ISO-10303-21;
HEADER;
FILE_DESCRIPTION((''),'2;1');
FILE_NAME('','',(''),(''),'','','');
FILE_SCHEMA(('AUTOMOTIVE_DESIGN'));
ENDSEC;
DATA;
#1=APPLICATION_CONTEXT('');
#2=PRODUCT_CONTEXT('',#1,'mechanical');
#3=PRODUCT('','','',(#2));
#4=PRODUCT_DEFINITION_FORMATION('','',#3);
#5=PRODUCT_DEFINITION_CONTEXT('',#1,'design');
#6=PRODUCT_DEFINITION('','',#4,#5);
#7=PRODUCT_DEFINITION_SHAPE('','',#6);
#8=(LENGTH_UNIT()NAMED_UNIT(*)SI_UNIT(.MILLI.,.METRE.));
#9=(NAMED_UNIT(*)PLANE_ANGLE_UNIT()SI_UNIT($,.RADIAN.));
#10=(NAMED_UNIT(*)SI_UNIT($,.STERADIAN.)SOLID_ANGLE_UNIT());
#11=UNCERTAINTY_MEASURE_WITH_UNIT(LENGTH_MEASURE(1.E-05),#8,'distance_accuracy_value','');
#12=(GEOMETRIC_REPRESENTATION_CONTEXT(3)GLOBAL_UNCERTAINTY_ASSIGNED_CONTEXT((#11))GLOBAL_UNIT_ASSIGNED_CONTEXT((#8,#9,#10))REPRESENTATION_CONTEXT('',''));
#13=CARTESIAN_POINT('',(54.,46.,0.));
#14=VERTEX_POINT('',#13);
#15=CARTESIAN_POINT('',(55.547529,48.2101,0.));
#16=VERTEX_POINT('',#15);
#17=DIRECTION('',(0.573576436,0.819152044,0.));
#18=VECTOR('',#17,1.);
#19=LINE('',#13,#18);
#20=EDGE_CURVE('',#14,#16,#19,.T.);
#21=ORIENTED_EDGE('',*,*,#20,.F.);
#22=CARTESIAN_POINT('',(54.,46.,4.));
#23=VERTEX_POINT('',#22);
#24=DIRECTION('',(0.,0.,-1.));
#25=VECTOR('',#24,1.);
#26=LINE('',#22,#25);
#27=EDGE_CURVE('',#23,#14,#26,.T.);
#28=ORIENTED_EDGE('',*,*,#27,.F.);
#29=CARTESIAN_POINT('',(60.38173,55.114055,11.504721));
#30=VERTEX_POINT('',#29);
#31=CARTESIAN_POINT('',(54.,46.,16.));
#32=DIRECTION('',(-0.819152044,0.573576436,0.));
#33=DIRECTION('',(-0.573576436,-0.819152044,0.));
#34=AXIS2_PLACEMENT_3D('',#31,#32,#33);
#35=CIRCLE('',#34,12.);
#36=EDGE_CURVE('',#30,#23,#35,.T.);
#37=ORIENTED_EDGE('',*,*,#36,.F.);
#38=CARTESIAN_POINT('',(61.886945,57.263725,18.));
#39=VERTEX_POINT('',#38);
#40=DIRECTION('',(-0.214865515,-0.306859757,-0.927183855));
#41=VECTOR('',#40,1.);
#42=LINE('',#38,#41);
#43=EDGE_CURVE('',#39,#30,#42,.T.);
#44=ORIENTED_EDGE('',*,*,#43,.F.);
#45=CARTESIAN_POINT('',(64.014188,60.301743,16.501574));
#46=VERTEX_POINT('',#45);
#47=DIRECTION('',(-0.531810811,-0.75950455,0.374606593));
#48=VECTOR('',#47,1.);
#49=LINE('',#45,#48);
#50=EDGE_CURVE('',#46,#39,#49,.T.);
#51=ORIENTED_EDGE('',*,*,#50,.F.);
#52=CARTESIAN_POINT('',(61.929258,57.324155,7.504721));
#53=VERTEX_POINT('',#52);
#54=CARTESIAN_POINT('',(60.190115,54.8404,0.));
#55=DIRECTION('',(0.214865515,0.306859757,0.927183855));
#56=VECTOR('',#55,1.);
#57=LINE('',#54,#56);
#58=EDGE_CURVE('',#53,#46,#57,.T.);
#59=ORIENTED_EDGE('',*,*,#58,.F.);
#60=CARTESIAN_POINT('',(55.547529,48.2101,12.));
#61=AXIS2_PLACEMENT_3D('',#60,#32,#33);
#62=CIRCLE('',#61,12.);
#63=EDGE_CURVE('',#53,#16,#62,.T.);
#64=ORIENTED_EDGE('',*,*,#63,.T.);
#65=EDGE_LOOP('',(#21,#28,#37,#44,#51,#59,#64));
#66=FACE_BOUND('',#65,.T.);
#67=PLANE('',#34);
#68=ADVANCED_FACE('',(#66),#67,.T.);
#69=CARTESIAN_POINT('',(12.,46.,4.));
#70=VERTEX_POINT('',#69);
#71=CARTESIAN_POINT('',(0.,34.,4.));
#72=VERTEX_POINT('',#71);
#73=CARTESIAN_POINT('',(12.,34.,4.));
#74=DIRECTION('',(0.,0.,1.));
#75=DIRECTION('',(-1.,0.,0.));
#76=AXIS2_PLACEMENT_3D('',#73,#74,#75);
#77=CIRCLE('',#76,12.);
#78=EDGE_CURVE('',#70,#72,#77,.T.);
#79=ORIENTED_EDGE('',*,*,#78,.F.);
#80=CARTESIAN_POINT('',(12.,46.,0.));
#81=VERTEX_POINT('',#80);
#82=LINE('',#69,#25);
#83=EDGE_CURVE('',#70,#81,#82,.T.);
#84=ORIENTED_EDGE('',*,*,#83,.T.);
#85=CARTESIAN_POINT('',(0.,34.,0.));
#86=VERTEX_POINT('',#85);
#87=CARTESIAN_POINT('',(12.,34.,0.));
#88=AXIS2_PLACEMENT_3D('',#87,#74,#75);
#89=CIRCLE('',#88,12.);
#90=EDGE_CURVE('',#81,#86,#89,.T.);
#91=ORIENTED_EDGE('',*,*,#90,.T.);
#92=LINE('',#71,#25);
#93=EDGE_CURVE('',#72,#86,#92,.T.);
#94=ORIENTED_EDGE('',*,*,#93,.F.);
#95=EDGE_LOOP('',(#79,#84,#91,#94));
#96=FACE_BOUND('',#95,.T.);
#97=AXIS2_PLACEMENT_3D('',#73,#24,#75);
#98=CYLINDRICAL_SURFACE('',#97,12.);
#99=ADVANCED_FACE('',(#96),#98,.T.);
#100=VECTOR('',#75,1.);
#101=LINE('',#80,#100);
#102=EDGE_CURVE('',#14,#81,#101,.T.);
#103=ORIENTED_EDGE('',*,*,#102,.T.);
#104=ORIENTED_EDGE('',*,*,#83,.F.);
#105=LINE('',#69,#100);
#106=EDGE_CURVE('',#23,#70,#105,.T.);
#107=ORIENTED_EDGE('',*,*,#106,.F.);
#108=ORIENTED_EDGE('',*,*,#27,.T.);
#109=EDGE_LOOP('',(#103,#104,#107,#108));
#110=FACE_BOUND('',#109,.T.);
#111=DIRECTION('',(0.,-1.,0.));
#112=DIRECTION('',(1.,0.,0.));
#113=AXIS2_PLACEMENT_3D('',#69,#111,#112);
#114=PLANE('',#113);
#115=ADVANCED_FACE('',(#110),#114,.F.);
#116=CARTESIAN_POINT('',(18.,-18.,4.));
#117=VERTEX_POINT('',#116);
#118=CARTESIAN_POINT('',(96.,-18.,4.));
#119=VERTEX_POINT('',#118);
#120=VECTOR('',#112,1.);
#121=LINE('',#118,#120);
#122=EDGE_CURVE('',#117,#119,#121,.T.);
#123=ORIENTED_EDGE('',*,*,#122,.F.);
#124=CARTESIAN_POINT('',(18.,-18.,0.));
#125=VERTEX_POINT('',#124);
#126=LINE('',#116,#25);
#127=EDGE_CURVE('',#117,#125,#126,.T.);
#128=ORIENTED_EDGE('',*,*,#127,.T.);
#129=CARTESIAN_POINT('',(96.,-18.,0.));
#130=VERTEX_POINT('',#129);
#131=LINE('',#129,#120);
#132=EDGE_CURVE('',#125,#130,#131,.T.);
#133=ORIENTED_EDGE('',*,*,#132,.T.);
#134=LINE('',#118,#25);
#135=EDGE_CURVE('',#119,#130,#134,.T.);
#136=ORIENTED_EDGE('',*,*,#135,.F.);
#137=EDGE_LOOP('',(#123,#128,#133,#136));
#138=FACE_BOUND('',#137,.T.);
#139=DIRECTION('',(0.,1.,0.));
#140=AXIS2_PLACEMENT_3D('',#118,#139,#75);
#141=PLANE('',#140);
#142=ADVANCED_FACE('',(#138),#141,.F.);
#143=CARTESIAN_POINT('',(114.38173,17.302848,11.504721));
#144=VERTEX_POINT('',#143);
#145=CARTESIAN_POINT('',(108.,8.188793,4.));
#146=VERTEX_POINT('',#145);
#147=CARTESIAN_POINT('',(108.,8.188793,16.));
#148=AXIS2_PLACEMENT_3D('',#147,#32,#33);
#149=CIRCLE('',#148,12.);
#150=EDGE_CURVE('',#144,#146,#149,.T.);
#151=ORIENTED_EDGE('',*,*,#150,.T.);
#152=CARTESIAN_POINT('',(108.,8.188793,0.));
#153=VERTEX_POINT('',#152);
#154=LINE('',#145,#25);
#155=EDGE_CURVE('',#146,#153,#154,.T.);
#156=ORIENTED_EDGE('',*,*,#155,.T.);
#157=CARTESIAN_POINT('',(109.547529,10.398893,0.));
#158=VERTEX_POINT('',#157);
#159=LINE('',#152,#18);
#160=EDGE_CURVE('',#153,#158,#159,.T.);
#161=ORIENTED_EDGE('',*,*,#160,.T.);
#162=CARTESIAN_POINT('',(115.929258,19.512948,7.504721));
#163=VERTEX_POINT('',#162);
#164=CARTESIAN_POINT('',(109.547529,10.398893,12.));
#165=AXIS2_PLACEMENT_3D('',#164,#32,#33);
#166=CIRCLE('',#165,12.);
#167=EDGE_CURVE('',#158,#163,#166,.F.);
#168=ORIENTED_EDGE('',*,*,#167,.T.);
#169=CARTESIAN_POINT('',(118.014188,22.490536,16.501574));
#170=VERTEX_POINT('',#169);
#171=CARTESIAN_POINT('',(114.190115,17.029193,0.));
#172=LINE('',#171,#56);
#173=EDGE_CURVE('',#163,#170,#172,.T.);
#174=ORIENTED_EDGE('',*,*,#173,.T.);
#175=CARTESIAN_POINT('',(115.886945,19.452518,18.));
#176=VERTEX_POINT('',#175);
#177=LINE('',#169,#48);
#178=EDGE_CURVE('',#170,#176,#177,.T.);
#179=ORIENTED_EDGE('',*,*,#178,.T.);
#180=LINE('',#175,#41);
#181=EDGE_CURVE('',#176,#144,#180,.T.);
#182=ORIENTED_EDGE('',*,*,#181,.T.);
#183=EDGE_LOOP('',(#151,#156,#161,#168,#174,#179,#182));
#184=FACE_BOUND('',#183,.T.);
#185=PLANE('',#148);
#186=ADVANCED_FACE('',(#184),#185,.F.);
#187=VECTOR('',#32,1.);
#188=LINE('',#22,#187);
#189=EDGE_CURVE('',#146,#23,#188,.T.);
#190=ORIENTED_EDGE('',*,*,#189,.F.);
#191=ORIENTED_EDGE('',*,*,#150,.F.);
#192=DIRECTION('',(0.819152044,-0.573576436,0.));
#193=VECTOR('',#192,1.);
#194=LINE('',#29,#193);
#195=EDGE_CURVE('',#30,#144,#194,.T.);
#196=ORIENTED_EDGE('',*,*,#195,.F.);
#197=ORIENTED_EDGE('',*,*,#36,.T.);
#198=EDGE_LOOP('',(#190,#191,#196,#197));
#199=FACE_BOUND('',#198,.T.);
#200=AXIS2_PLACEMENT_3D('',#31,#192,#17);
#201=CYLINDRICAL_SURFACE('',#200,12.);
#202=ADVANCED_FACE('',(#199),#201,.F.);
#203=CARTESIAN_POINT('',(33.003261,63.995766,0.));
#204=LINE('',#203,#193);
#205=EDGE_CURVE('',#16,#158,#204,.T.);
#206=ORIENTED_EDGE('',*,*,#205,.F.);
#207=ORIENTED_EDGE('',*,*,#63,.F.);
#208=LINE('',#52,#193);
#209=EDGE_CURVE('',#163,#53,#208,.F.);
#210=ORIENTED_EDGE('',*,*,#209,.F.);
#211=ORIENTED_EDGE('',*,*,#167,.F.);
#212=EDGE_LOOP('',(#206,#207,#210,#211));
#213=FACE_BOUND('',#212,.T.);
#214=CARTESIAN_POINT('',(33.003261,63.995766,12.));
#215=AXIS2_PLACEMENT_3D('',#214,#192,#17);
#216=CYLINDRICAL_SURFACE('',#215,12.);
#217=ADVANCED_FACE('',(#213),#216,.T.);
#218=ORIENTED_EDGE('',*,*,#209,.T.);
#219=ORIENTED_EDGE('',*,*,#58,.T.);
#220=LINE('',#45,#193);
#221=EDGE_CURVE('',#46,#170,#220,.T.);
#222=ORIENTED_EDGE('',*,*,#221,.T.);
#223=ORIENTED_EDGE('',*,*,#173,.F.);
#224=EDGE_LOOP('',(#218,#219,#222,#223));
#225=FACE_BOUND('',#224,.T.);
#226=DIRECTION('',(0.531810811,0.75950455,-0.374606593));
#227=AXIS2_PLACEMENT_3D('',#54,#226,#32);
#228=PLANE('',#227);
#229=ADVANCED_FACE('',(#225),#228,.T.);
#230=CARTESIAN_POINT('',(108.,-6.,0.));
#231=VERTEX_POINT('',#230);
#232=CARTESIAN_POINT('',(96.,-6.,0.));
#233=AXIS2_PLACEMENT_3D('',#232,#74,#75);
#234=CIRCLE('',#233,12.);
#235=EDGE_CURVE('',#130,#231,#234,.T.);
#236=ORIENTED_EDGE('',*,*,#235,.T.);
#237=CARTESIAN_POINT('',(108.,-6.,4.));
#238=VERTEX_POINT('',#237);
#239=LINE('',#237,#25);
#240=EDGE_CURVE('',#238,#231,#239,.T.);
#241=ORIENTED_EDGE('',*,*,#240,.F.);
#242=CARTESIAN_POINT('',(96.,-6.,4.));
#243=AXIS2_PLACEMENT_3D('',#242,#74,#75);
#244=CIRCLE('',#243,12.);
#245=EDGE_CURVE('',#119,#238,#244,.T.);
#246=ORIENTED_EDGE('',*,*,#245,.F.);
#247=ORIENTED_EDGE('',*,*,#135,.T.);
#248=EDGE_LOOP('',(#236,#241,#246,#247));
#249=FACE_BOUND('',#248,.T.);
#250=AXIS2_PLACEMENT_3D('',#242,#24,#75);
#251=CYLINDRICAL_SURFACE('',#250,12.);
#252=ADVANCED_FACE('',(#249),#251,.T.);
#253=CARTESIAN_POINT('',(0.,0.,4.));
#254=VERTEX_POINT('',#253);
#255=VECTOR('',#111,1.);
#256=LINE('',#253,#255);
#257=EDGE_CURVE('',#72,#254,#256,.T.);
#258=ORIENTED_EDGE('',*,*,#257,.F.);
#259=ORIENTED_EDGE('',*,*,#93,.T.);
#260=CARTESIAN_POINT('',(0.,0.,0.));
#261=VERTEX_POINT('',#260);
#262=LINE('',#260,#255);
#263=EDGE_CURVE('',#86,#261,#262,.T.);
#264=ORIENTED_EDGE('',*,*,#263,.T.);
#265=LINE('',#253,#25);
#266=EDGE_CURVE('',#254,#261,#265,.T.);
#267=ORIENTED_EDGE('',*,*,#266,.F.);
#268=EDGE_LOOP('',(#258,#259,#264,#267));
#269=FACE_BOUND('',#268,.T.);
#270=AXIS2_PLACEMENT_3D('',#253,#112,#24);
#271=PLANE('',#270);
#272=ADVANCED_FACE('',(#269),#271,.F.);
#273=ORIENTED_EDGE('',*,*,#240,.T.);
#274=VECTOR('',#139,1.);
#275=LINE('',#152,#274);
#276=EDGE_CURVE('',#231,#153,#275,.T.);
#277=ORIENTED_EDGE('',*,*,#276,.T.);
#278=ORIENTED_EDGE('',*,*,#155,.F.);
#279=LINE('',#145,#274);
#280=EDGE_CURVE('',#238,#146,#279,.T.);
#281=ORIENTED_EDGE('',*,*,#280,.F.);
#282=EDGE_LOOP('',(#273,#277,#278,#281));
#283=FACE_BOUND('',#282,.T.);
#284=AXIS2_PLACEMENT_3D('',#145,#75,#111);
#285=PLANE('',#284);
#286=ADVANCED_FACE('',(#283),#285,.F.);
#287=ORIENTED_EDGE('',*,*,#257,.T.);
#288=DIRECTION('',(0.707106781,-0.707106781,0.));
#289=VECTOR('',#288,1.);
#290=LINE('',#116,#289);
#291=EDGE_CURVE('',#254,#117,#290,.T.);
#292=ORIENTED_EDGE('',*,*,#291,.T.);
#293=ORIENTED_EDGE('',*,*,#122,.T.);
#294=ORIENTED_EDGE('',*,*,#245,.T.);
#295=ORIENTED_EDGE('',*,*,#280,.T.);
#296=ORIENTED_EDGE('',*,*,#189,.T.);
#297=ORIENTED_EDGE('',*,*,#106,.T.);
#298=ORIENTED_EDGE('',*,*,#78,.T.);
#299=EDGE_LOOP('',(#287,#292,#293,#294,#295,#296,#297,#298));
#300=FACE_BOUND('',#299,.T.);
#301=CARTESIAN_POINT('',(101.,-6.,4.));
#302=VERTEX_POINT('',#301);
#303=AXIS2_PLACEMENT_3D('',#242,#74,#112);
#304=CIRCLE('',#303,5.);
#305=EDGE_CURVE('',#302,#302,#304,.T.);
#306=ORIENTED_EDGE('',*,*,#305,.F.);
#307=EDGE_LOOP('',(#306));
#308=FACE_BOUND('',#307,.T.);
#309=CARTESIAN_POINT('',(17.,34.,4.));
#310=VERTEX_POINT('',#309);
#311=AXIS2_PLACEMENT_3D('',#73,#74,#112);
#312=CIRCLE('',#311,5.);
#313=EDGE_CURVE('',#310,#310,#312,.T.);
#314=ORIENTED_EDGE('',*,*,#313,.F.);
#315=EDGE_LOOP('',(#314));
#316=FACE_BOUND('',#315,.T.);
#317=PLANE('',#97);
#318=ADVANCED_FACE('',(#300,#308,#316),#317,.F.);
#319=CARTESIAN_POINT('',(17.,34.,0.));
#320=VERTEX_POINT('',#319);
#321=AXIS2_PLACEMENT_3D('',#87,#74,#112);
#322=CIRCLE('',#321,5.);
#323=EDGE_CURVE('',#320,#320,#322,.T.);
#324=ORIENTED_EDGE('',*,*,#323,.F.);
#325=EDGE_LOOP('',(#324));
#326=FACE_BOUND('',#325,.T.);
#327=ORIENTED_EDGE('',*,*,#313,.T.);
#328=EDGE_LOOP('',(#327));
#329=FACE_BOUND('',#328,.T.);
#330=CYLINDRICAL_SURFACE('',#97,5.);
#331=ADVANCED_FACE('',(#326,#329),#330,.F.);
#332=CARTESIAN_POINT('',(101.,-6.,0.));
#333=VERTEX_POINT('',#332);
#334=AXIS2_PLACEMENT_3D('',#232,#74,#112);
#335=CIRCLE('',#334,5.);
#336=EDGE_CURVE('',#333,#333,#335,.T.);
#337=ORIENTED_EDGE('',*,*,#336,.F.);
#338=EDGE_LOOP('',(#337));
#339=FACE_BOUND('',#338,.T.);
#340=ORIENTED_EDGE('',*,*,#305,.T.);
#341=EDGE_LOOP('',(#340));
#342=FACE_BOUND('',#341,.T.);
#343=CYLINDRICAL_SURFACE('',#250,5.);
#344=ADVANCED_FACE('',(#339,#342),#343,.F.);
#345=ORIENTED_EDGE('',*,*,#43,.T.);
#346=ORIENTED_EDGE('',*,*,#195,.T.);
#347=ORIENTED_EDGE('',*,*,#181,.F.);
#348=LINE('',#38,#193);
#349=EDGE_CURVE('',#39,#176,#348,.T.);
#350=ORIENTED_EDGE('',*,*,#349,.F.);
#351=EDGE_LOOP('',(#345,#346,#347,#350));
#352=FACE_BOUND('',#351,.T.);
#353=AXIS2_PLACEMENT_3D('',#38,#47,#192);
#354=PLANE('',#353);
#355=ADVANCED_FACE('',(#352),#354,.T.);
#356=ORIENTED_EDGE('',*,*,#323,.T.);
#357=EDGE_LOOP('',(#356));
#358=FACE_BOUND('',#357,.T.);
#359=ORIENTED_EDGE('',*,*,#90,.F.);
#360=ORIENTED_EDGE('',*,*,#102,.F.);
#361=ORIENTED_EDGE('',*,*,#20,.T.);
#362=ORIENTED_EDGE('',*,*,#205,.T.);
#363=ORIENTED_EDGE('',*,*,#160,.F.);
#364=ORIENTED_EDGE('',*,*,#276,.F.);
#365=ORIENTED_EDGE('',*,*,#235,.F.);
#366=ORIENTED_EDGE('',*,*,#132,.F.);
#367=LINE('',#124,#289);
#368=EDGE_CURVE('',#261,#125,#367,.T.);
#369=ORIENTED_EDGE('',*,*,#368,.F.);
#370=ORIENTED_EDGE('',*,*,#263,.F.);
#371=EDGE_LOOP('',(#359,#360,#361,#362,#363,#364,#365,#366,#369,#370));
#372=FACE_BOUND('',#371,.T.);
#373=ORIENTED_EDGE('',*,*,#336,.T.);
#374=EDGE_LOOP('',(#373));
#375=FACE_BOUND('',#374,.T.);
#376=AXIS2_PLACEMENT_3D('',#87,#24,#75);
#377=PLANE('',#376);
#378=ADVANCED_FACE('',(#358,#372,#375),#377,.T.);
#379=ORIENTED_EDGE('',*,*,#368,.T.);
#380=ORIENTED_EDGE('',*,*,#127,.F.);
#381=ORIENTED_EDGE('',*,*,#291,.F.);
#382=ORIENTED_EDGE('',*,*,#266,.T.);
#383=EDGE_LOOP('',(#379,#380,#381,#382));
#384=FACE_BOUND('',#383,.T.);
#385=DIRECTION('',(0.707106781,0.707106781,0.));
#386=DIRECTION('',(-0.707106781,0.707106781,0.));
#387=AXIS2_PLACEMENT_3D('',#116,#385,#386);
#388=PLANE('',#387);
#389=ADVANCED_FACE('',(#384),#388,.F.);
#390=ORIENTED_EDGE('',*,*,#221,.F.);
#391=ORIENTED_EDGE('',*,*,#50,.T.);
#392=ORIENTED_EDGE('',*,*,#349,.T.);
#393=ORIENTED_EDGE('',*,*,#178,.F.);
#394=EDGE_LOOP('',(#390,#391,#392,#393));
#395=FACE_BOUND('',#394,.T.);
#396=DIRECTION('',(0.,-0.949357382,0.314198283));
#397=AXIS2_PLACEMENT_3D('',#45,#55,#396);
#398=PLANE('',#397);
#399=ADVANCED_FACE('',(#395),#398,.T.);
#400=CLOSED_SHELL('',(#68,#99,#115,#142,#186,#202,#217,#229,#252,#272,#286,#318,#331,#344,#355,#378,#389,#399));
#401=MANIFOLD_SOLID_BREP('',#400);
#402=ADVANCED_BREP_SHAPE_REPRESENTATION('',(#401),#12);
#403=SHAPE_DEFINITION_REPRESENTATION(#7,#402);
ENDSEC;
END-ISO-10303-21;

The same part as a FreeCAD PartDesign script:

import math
import FreeCAD as App
import Part
import Sketcher
Q = App.Units.Quantity


def edges_at(feature, points):
    """Names of the edges that pass closest to the given points."""
    edges = feature.Shape.Edges
    near = lambda p: min(range(len(edges)), key=lambda i: edges[i].distToShape(Part.Vertex(*p))[0])
    return sorted({f"Edge{near(p) + 1}" for p in points})

doc = App.newDocument("Part")
params = doc.addObject("Spreadsheet::Sheet", "Params")
for row, (alias, value) in enumerate([
    ("sketch1_diameter", "10 mm"),
    ("sketch1_radius", "12 mm"),
    ("sketch1_width", "78 mm"),
    ("sketch1_width2", "42 mm"),
    ("sketch1_height", "34 mm"),
    ("pad1_length", "4 mm"),
    ("sketch2_radius", "12 mm"),
    ("sketch2_width", "4 mm"),
    ("sketch2_length", "4 mm"),
    ("pad2_length", "65.921828 mm"),
    ("fillet_radius", "12 mm"),
], start=1):
    params.set(f"A{row}", alias)
    params.set(f"B{row}", "=" + value)
    params.setAlias(f"B{row}", alias)

body = doc.addObject("PartDesign::Body", "Body")

# Sketch on XY plane
sketch1 = body.newObject("Sketcher::SketchObject", "Sketch")
sketch1.AttachmentSupport = (doc.getObject("XY_Plane"), [""])
sketch1.MapMode = "FlatFace"
sketch1.addGeometry(Part.LineSegment(App.Vector(0, 34, 0), App.Vector(0, 0, 0)), False)
sketch1.addGeometry(Part.LineSegment(App.Vector(0, 0, 0), App.Vector(18, -18, 0)), False)
sketch1.addGeometry(Part.LineSegment(App.Vector(18, -18, 0), App.Vector(96, -18, 0)), False)
sketch1.addGeometry(Part.ArcOfCircle(Part.Circle(App.Vector(96, -6, 0), App.Vector(0, 0, 1), 12), math.radians(-90), math.radians(0)), False)
sketch1.addGeometry(Part.LineSegment(App.Vector(108, -6, 0), App.Vector(108, 8, 0)), False)
sketch1.addGeometry(Part.LineSegment(App.Vector(108, 8, 0), App.Vector(54, 46, 0)), False)
sketch1.addGeometry(Part.LineSegment(App.Vector(54, 46, 0), App.Vector(12, 46, 0)), False)
sketch1.addGeometry(Part.ArcOfCircle(Part.Circle(App.Vector(12, 34, 0), App.Vector(0, 0, 1), 12), math.radians(90), math.radians(180)), False)
sketch1.addGeometry(Part.Circle(App.Vector(96, -6, 0), App.Vector(0, 0, 1), 5), False)
sketch1.addGeometry(Part.Circle(App.Vector(12, 34, 0), App.Vector(0, 0, 1), 5), False)
sketch1.addConstraint(Sketcher.Constraint("Coincident", 0, 2, 1, 1))
sketch1.addConstraint(Sketcher.Constraint("Coincident", 1, 2, 2, 1))
sketch1.addConstraint(Sketcher.Constraint("Tangent", 2, 2, 3, 1))
sketch1.addConstraint(Sketcher.Constraint("Tangent", 3, 2, 4, 1))
sketch1.addConstraint(Sketcher.Constraint("Coincident", 4, 2, 5, 1))
sketch1.addConstraint(Sketcher.Constraint("Coincident", 5, 2, 6, 1))
sketch1.addConstraint(Sketcher.Constraint("Tangent", 6, 2, 7, 1))
sketch1.addConstraint(Sketcher.Constraint("Tangent", 7, 2, 0, 1))
sketch1.addConstraint(Sketcher.Constraint("Vertical", 0))
sketch1.addConstraint(Sketcher.Constraint("Horizontal", 2))
sketch1.addConstraint(Sketcher.Constraint("Vertical", 4))
sketch1.addConstraint(Sketcher.Constraint("Horizontal", 6))
sketch1.addConstraint(Sketcher.Constraint("Coincident", 0, 2, -1, 1))
sketch1.addConstraint(Sketcher.Constraint("Coincident", 8, 3, 3, 3))
sketch1.addConstraint(Sketcher.Constraint("Coincident", 9, 3, 7, 3))
sketch1.addConstraint(Sketcher.Constraint("Equal", 3, 7))
sketch1.addConstraint(Sketcher.Constraint("Equal", 8, 9))
sketch1.addConstraint(Sketcher.Constraint("Diameter", 8, 10.0))
sketch1.addConstraint(Sketcher.Constraint("Radius", 3, 12.0))
sketch1.addConstraint(Sketcher.Constraint("DistanceX", 2, 1, 2, 2, 78.0))
sketch1.addConstraint(Sketcher.Constraint("DistanceX", 6, 2, 6, 1, 42.0))
sketch1.addConstraint(Sketcher.Constraint("DistanceY", 0, 2, 0, 1, 34.0))
sketch1.addConstraint(Sketcher.Constraint("Angle", 1, Q("-45 deg")))
sketch1.addConstraint(Sketcher.Constraint("Angle", 5, Q("145 deg")))
sketch1.addConstraint(Sketcher.Constraint("DistanceX", -1, 1, 3, 3, 96.0))
sketch1.setExpression("Constraints[17]", "Params.sketch1_diameter")
sketch1.setExpression("Constraints[18]", "Params.sketch1_radius")
sketch1.setExpression("Constraints[19]", "Params.sketch1_width")
sketch1.setExpression("Constraints[20]", "Params.sketch1_width2")
sketch1.setExpression("Constraints[21]", "Params.sketch1_height")
pad1 = body.newObject("PartDesign::Pad", "Pad")
pad1.Profile = sketch1
pad1.setExpression("Length", "Params.pad1_length")

# Sketch on an angled plane
sketch2 = body.newObject("Sketcher::SketchObject", "Sketch001")
sketch2.Placement = App.Placement(App.Vector(14.621613, -10.238164, 0), App.Rotation(App.Vector(0, 0, -1), App.Vector(0.573576436, 0.819152044, 0), App.Vector(0.819152044, -0.573576436, 0), "ZXY"))
sketch2.addGeometry(Part.LineSegment(App.Vector(-4, 68.7, 0), App.Vector(0, 68.7, 0)), False)
sketch2.addGeometry(Part.LineSegment(App.Vector(0, 68.7, 0), App.Vector(0, 79.4, 0)), False)
sketch2.addGeometry(Part.LineSegment(App.Vector(0, 79.4, 0), App.Vector(-16.5, 86.1, 0)), False)
sketch2.addGeometry(Part.LineSegment(App.Vector(-16.5, 86.1, 0), App.Vector(-18, 82.4, 0)), False)
sketch2.addGeometry(Part.LineSegment(App.Vector(-18, 82.4, 0), App.Vector(-11.5, 79.8, 0)), False)
sketch2.addGeometry(Part.ArcOfCircle(Part.Circle(App.Vector(-16, 68.7, 0), App.Vector(0, 0, 1), 12), math.radians(0), math.radians(68)), False)
sketch2.addConstraint(Sketcher.Constraint("Coincident", 0, 2, 1, 1))
sketch2.addConstraint(Sketcher.Constraint("Coincident", 1, 2, 2, 1))
sketch2.addConstraint(Sketcher.Constraint("Coincident", 2, 2, 3, 1))
sketch2.addConstraint(Sketcher.Constraint("Coincident", 3, 2, 4, 1))
sketch2.addConstraint(Sketcher.Constraint("Tangent", 4, 2, 5, 2))
sketch2.addConstraint(Sketcher.Constraint("Coincident", 5, 1, 0, 1))
sketch2.addConstraint(Sketcher.Constraint("Horizontal", 0))
sketch2.addConstraint(Sketcher.Constraint("Vertical", 1))
sketch2.addConstraint(Sketcher.Constraint("PointOnObject", 0, 2, -2))
sketch2.addConstraint(Sketcher.Constraint("Perpendicular", 2, 3))
sketch2.addConstraint(Sketcher.Constraint("Perpendicular", 3, 4))
sketch2.addConstraint(Sketcher.Constraint("Horizontal", 5, 3, 0, 2))
sketch2.addConstraint(Sketcher.Constraint("Radius", 5, 12.0))
sketch2.addConstraint(Sketcher.Constraint("DistanceX", 0, 1, 0, 2, 4.0))
sketch2.addConstraint(Sketcher.Constraint("Angle", 2, Q("158 deg")))
sketch2.addConstraint(Sketcher.Constraint("Distance", 3, 4.0))
sketch2.addConstraint(Sketcher.Constraint("DistanceX", 3, 2, -1, 1, 18.0))
sketch2.addConstraint(Sketcher.Constraint("DistanceY", -1, 1, 5, 3, 68.654122))
sketch2.setExpression("Constraints[12]", "Params.sketch2_radius")
sketch2.setExpression("Constraints[13]", "Params.sketch2_width")
sketch2.setExpression("Constraints[15]", "Params.sketch2_length")
pad2 = body.newObject("PartDesign::Pad", "Pad001")
pad2.Profile = sketch2
pad2.setExpression("Length", "Params.pad2_length")
doc.recompute()

fillet = body.newObject("PartDesign::Fillet", "Fillet")
fillet.Base = (pad2, edges_at(pad2, [(87.19, 35.935, 0)]))
fillet.setExpression("Radius", "Params.fillet_radius")

doc.recompute()
